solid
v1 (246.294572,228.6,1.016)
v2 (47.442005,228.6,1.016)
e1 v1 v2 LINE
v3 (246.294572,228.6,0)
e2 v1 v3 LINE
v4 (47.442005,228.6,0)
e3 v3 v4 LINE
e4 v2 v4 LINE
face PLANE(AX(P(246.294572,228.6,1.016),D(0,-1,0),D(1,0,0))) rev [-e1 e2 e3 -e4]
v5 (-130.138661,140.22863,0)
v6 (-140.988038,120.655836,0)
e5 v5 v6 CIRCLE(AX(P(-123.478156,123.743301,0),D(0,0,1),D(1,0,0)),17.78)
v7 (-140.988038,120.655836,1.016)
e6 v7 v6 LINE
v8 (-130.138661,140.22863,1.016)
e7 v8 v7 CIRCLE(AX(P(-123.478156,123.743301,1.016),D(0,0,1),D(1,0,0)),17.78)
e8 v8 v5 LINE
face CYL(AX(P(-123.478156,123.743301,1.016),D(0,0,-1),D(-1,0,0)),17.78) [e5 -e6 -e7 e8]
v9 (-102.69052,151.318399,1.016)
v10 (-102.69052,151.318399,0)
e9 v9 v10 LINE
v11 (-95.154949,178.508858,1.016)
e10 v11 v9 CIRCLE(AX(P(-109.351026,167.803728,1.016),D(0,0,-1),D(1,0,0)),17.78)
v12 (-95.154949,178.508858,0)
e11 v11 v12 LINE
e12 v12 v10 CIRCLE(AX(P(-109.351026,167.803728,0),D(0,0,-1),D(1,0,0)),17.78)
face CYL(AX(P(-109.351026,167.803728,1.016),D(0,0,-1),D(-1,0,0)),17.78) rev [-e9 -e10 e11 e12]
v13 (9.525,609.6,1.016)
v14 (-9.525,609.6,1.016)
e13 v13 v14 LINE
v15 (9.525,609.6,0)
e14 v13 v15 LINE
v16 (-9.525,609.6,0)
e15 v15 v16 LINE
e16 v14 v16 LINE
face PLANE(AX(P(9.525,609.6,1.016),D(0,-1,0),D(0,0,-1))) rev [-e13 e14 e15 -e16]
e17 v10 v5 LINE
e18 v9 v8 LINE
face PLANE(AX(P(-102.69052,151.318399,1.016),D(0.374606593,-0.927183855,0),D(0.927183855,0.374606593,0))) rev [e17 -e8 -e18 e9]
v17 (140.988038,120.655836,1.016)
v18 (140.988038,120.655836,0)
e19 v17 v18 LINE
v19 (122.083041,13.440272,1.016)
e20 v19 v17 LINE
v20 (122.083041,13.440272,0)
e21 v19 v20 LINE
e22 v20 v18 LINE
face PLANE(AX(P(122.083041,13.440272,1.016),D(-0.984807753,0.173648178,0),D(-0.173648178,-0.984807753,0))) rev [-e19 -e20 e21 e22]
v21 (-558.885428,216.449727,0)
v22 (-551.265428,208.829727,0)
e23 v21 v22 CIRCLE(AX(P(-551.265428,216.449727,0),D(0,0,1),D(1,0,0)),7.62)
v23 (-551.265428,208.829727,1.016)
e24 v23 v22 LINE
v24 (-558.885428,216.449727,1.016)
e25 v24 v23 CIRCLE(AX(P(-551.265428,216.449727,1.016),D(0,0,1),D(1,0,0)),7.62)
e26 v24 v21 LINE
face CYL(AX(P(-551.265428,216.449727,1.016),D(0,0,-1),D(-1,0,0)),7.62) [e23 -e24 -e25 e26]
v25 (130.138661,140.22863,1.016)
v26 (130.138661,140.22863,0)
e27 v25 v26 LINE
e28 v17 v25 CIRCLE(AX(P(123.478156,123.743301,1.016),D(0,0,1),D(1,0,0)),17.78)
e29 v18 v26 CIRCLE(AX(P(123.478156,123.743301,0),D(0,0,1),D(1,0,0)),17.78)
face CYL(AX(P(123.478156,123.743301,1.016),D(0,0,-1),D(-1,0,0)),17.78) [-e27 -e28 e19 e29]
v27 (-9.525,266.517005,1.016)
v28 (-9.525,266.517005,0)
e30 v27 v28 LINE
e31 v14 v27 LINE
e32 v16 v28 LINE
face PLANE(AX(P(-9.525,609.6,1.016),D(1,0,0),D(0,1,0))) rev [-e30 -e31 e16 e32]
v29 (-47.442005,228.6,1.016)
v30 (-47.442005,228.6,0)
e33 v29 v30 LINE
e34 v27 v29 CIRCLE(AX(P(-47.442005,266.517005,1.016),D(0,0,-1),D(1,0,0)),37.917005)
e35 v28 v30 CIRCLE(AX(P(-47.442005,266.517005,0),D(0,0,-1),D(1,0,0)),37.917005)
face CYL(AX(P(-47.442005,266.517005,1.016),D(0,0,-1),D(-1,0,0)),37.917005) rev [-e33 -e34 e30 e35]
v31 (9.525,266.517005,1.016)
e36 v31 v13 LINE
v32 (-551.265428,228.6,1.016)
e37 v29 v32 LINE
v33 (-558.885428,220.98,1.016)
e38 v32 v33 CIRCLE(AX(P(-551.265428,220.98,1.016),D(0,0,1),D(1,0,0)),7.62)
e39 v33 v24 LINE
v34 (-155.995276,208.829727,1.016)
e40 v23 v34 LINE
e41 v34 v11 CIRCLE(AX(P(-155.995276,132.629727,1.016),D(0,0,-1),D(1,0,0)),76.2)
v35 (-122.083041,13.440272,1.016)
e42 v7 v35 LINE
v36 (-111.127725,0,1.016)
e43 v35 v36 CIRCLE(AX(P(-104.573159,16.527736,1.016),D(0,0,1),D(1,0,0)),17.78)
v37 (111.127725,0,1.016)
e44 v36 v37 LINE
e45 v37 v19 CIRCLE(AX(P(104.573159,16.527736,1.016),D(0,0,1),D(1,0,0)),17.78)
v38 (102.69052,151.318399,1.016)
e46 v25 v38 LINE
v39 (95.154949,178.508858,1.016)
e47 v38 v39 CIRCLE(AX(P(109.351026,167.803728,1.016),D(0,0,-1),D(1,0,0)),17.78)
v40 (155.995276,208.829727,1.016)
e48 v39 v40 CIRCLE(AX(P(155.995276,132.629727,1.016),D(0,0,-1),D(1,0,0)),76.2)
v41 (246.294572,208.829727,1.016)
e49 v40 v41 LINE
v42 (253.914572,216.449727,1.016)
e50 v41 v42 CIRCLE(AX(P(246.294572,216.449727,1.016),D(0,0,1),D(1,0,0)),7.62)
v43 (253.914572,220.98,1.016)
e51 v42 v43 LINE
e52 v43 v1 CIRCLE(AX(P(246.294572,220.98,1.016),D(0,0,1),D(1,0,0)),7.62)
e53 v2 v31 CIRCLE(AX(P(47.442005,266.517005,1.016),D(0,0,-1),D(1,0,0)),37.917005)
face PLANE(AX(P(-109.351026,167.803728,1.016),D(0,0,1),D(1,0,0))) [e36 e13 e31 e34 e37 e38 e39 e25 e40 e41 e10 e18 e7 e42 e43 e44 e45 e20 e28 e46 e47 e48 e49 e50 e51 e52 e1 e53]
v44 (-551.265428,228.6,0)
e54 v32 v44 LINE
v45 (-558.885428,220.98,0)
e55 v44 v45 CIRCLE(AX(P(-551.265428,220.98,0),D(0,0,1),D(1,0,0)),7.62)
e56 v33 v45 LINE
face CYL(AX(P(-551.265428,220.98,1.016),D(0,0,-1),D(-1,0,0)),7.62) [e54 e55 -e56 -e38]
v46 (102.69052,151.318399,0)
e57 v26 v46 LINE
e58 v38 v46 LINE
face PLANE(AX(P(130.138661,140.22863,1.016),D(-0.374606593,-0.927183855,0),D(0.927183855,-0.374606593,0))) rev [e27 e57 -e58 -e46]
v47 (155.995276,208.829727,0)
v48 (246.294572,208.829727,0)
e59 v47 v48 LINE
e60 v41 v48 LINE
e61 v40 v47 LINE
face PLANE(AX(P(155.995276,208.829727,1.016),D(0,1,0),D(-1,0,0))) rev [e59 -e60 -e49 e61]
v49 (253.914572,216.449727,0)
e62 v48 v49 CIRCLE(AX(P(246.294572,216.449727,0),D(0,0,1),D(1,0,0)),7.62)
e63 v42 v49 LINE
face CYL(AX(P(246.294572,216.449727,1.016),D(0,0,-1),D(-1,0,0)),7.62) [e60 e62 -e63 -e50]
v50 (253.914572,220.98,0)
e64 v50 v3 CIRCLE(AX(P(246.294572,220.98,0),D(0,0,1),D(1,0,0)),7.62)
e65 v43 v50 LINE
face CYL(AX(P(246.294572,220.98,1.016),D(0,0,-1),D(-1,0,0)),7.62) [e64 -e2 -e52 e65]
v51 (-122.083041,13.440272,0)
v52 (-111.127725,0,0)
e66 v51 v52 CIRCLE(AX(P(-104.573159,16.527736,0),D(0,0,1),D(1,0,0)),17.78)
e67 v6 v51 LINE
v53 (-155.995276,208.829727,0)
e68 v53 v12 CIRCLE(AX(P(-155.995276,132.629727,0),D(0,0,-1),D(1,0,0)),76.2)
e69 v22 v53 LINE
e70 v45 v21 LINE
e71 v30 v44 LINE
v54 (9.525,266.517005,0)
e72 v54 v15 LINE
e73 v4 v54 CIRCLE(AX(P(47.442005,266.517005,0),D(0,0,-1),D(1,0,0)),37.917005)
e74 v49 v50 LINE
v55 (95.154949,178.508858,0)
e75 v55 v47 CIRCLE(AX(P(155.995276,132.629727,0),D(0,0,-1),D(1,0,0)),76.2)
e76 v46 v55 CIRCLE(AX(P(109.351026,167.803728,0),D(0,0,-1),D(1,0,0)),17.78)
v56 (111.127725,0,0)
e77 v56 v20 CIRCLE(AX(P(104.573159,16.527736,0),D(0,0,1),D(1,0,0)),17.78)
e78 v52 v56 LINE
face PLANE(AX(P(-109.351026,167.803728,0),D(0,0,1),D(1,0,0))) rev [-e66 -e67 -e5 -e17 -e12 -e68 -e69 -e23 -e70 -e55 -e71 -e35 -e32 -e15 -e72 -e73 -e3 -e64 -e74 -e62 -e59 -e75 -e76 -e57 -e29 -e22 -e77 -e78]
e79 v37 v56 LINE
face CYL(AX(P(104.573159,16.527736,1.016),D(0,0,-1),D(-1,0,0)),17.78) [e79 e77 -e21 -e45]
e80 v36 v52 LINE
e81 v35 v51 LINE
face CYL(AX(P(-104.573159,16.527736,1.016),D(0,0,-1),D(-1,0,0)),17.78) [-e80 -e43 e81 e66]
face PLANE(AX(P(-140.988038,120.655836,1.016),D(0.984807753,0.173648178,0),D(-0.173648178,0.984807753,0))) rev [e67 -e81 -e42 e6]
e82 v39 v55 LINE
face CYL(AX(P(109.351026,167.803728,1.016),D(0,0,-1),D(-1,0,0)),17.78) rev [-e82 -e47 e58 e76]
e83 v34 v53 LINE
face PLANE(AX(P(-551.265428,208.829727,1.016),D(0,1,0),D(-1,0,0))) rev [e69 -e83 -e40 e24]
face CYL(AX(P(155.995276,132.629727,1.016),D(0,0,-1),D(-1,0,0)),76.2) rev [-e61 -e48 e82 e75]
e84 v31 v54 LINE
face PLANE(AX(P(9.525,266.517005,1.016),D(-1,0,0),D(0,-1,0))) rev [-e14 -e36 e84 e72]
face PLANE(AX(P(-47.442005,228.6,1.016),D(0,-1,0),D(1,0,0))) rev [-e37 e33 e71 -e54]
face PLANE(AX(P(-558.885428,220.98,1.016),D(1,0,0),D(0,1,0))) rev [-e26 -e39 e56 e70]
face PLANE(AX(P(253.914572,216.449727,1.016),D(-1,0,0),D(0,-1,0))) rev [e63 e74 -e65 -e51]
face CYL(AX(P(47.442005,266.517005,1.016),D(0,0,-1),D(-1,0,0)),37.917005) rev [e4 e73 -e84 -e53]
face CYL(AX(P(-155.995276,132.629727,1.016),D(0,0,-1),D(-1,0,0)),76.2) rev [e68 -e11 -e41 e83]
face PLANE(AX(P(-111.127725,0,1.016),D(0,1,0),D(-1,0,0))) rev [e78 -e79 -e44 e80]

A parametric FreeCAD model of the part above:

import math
import FreeCAD as App
import Part
import Sketcher
from FreeCAD import Vector
Q = App.Units.Quantity

doc = App.newDocument("Part")
body = doc.addObject("PartDesign::Body", "Body")

# Sketch on XY plane
sketch1 = body.newObject("Sketcher::SketchObject", "Sketch")
sketch1.AttachmentSupport = (doc.getObject("XY_Plane"), [""])
sketch1.MapMode = "FlatFace"
sketch1.addGeometry([
    Part.LineSegment(Vector(-102.7, 151.3, 0), Vector(-130.1, 140.2, 0)),  # 0
    Part.ArcOfCircle(Part.Circle(Vector(-123.5, 123.7, 0), Vector(0, 0, 1), 17.8), math.radians(112), math.radians(190)),  # 1
    Part.LineSegment(Vector(-141, 120.7, 0), Vector(-122.1, 13.4, 0)),  # 2
    Part.ArcOfCircle(Part.Circle(Vector(-104.6, 16.5, 0), Vector(0, 0, 1), 17.8), math.radians(-170), math.radians(-112)),  # 3
    Part.LineSegment(Vector(-111.1, 0, 0), Vector(111.1, 0, 0)),  # 4
    Part.ArcOfCircle(Part.Circle(Vector(104.6, 16.5, 0), Vector(0, 0, 1), 17.8), math.radians(-68), math.radians(-10)),  # 5
    Part.LineSegment(Vector(122.1, 13.4, 0), Vector(141, 120.7, 0)),  # 6
    Part.ArcOfCircle(Part.Circle(Vector(123.5, 123.7, 0), Vector(0, 0, 1), 17.8), math.radians(-10), math.radians(68)),  # 7
    Part.LineSegment(Vector(130.1, 140.2, 0), Vector(102.7, 151.3, 0)),  # 8
    Part.ArcOfCircle(Part.Circle(Vector(109.4, 167.8, 0), Vector(0, 0, 1), 17.8), math.radians(143), math.radians(248)),  # 9
    Part.ArcOfCircle(Part.Circle(Vector(156, 132.6, 0), Vector(0, 0, 1), 76.2), math.radians(90), math.radians(143)),  # 10
    Part.LineSegment(Vector(156, 208.8, 0), Vector(246.3, 208.8, 0)),  # 11
    Part.ArcOfCircle(Part.Circle(Vector(246.3, 216.4, 0), Vector(0, 0, 1), 7.6), math.radians(-90), math.radians(0)),  # 12
    Part.LineSegment(Vector(253.9, 216.4, 0), Vector(253.9, 221, 0)),  # 13
    Part.ArcOfCircle(Part.Circle(Vector(246.3, 221, 0), Vector(0, 0, 1), 7.6), math.radians(0), math.radians(90)),  # 14
    Part.LineSegment(Vector(246.3, 228.6, 0), Vector(47.4, 228.6, 0)),  # 15
    Part.ArcOfCircle(Part.Circle(Vector(47.4, 266.5, 0), Vector(0, 0, 1), 37.9), math.radians(-180), math.radians(-90)),  # 16
    Part.LineSegment(Vector(9.5, 266.5, 0), Vector(9.5, 609.6, 0)),  # 17
    Part.LineSegment(Vector(9.5, 609.6, 0), Vector(-9.5, 609.6, 0)),  # 18
    Part.LineSegment(Vector(-9.5, 609.6, 0), Vector(-9.5, 266.5, 0)),  # 19
    Part.ArcOfCircle(Part.Circle(Vector(-47.4, 266.5, 0), Vector(0, 0, 1), 37.9), math.radians(-90), math.radians(0)),  # 20
    Part.LineSegment(Vector(-47.4, 228.6, 0), Vector(-551.3, 228.6, 0)),  # 21
    Part.ArcOfCircle(Part.Circle(Vector(-551.3, 221, 0), Vector(0, 0, 1), 7.6), math.radians(90), math.radians(180)),  # 22
    Part.LineSegment(Vector(-558.9, 221, 0), Vector(-558.9, 216.4, 0)),  # 23
    Part.ArcOfCircle(Part.Circle(Vector(-551.3, 216.4, 0), Vector(0, 0, 1), 7.6), math.radians(180), math.radians(270)),  # 24
    Part.LineSegment(Vector(-551.3, 208.8, 0), Vector(-156, 208.8, 0)),  # 25
    Part.ArcOfCircle(Part.Circle(Vector(-156, 132.6, 0), Vector(0, 0, 1), 76.2), math.radians(37), math.radians(90)),  # 26
    Part.ArcOfCircle(Part.Circle(Vector(-109.4, 167.8, 0), Vector(0, 0, 1), 17.8), math.radians(-68), math.radians(37)),  # 27
], False)
sketch1.addConstraint([
    Sketcher.Constraint("Tangent", 0, 2, 1, 1),
    Sketcher.Constraint("Tangent", 1, 2, 2, 1),
    Sketcher.Constraint("Tangent", 2, 2, 3, 1),
    Sketcher.Constraint("Coincident", 3, 2, 4, 1),
    Sketcher.Constraint("Coincident", 4, 2, 5, 1),
    Sketcher.Constraint("Tangent", 5, 2, 6, 1),
    Sketcher.Constraint("Tangent", 6, 2, 7, 1),
    Sketcher.Constraint("Tangent", 7, 2, 8, 1),
    Sketcher.Constraint("Tangent", 8, 2, 9, 2),
    Sketcher.Constraint("Tangent", 9, 1, 10, 2),
    Sketcher.Constraint("Tangent", 10, 1, 11, 1),
    Sketcher.Constraint("Tangent", 11, 2, 12, 1),
    Sketcher.Constraint("Tangent", 12, 2, 13, 1),
    Sketcher.Constraint("Tangent", 13, 2, 14, 1),
    Sketcher.Constraint("Tangent", 14, 2, 15, 1),
    Sketcher.Constraint("Tangent", 15, 2, 16, 2),
    Sketcher.Constraint("Tangent", 16, 1, 17, 1),
    Sketcher.Constraint("Coincident", 17, 2, 18, 1),
    Sketcher.Constraint("Coincident", 18, 2, 19, 1),
    Sketcher.Constraint("Tangent", 19, 2, 20, 2),
    Sketcher.Constraint("Tangent", 20, 1, 21, 1),
    Sketcher.Constraint("Tangent", 21, 2, 22, 1),
    Sketcher.Constraint("Tangent", 22, 2, 23, 1),
    Sketcher.Constraint("Tangent", 23, 2, 24, 1),
    Sketcher.Constraint("Tangent", 24, 2, 25, 1),
    Sketcher.Constraint("Tangent", 25, 2, 26, 2),
    Sketcher.Constraint("Tangent", 26, 1, 27, 2),
    Sketcher.Constraint("Tangent", 27, 1, 0, 1),
    Sketcher.Constraint("Horizontal", 4),
    Sketcher.Constraint("Horizontal", 11),
    Sketcher.Constraint("Vertical", 13),
    Sketcher.Constraint("Horizontal", 15),
    Sketcher.Constraint("Vertical", 17),
    Sketcher.Constraint("Horizontal", 18),
    Sketcher.Constraint("Vertical", 19),
    Sketcher.Constraint("Horizontal", 21),
    Sketcher.Constraint("Vertical", 23),
    Sketcher.Constraint("Horizontal", 25),
    Sketcher.Constraint("Equal", 1, 3),
    Sketcher.Constraint("Equal", 3, 5),
    Sketcher.Constraint("Equal", 5, 7),
    Sketcher.Constraint("Equal", 7, 9),
    Sketcher.Constraint("Equal", 12, 14),
    Sketcher.Constraint("Equal", 16, 20),
    Sketcher.Constraint("Equal", 14, 22),
    Sketcher.Constraint("Equal", 22, 24),
    Sketcher.Constraint("Equal", 10, 26),
    Sketcher.Constraint("Equal", 9, 27),
    Sketcher.Constraint("Symmetric", 3, 2, 4, 2, -1, 1),
    Sketcher.Constraint("Symmetric", 1, 3, 7, 3, -2),
    Sketcher.Constraint("Symmetric", 16, 3, 20, 3, -2),
    Sketcher.Constraint("Symmetric", 10, 3, 26, 3, -2),
    Sketcher.Constraint("Horizontal", 3, 3, 5, 3),
    Sketcher.Constraint("Horizontal", 9, 3, 27, 3),
    Sketcher.Constraint("Radius", 10, Q("3 in")),
    Sketcher.Constraint("Radius", 1, Q("0.7 in")),
    Sketcher.Constraint("Radius", 12, Q("0.3 in")),
    Sketcher.Constraint("DistanceY", -1, 1, 14, 2, Q("9 in")),
    Sketcher.Constraint("DistanceY", -1, 1, 17, 2, Q("24 in")),
    Sketcher.Constraint("Angle", 0, Q("-158 deg")),
    Sketcher.Constraint("Angle", 2, Q("-80 deg")),
    Sketcher.Constraint("DistanceX", 18, 2, 18, 1, Q("0.75 in")),
    Sketcher.Constraint("Radius", 16, Q("37.917005 mm")),
    Sketcher.Constraint("DistanceX", 3, 3, 10, 3, Q("10.2585998 in")),
    Sketcher.Constraint("DistanceX", 4, 1, 4, 2, Q("222.255451 mm")),
    Sketcher.Constraint("DistanceX", 25, 1, 25, 2, Q("395.270152 mm")),
    Sketcher.Constraint("DistanceY", -1, 1, 1, 3, Q("123.743301 mm")),
    Sketcher.Constraint("DistanceY", -1, 1, 8, 2, Q("151.318399 mm")),
    Sketcher.Constraint("DistanceY", 10, 3, 9, 3, Q("35.174 mm")),
    Sketcher.Constraint("DistanceX", 11, 1, 11, 2, Q("90.299296 mm")),
])
pad1 = body.newObject("PartDesign::Pad", "Pad")
pad1.Profile = sketch1
pad1.Length = Q("0.04 in")

doc.recompute()
